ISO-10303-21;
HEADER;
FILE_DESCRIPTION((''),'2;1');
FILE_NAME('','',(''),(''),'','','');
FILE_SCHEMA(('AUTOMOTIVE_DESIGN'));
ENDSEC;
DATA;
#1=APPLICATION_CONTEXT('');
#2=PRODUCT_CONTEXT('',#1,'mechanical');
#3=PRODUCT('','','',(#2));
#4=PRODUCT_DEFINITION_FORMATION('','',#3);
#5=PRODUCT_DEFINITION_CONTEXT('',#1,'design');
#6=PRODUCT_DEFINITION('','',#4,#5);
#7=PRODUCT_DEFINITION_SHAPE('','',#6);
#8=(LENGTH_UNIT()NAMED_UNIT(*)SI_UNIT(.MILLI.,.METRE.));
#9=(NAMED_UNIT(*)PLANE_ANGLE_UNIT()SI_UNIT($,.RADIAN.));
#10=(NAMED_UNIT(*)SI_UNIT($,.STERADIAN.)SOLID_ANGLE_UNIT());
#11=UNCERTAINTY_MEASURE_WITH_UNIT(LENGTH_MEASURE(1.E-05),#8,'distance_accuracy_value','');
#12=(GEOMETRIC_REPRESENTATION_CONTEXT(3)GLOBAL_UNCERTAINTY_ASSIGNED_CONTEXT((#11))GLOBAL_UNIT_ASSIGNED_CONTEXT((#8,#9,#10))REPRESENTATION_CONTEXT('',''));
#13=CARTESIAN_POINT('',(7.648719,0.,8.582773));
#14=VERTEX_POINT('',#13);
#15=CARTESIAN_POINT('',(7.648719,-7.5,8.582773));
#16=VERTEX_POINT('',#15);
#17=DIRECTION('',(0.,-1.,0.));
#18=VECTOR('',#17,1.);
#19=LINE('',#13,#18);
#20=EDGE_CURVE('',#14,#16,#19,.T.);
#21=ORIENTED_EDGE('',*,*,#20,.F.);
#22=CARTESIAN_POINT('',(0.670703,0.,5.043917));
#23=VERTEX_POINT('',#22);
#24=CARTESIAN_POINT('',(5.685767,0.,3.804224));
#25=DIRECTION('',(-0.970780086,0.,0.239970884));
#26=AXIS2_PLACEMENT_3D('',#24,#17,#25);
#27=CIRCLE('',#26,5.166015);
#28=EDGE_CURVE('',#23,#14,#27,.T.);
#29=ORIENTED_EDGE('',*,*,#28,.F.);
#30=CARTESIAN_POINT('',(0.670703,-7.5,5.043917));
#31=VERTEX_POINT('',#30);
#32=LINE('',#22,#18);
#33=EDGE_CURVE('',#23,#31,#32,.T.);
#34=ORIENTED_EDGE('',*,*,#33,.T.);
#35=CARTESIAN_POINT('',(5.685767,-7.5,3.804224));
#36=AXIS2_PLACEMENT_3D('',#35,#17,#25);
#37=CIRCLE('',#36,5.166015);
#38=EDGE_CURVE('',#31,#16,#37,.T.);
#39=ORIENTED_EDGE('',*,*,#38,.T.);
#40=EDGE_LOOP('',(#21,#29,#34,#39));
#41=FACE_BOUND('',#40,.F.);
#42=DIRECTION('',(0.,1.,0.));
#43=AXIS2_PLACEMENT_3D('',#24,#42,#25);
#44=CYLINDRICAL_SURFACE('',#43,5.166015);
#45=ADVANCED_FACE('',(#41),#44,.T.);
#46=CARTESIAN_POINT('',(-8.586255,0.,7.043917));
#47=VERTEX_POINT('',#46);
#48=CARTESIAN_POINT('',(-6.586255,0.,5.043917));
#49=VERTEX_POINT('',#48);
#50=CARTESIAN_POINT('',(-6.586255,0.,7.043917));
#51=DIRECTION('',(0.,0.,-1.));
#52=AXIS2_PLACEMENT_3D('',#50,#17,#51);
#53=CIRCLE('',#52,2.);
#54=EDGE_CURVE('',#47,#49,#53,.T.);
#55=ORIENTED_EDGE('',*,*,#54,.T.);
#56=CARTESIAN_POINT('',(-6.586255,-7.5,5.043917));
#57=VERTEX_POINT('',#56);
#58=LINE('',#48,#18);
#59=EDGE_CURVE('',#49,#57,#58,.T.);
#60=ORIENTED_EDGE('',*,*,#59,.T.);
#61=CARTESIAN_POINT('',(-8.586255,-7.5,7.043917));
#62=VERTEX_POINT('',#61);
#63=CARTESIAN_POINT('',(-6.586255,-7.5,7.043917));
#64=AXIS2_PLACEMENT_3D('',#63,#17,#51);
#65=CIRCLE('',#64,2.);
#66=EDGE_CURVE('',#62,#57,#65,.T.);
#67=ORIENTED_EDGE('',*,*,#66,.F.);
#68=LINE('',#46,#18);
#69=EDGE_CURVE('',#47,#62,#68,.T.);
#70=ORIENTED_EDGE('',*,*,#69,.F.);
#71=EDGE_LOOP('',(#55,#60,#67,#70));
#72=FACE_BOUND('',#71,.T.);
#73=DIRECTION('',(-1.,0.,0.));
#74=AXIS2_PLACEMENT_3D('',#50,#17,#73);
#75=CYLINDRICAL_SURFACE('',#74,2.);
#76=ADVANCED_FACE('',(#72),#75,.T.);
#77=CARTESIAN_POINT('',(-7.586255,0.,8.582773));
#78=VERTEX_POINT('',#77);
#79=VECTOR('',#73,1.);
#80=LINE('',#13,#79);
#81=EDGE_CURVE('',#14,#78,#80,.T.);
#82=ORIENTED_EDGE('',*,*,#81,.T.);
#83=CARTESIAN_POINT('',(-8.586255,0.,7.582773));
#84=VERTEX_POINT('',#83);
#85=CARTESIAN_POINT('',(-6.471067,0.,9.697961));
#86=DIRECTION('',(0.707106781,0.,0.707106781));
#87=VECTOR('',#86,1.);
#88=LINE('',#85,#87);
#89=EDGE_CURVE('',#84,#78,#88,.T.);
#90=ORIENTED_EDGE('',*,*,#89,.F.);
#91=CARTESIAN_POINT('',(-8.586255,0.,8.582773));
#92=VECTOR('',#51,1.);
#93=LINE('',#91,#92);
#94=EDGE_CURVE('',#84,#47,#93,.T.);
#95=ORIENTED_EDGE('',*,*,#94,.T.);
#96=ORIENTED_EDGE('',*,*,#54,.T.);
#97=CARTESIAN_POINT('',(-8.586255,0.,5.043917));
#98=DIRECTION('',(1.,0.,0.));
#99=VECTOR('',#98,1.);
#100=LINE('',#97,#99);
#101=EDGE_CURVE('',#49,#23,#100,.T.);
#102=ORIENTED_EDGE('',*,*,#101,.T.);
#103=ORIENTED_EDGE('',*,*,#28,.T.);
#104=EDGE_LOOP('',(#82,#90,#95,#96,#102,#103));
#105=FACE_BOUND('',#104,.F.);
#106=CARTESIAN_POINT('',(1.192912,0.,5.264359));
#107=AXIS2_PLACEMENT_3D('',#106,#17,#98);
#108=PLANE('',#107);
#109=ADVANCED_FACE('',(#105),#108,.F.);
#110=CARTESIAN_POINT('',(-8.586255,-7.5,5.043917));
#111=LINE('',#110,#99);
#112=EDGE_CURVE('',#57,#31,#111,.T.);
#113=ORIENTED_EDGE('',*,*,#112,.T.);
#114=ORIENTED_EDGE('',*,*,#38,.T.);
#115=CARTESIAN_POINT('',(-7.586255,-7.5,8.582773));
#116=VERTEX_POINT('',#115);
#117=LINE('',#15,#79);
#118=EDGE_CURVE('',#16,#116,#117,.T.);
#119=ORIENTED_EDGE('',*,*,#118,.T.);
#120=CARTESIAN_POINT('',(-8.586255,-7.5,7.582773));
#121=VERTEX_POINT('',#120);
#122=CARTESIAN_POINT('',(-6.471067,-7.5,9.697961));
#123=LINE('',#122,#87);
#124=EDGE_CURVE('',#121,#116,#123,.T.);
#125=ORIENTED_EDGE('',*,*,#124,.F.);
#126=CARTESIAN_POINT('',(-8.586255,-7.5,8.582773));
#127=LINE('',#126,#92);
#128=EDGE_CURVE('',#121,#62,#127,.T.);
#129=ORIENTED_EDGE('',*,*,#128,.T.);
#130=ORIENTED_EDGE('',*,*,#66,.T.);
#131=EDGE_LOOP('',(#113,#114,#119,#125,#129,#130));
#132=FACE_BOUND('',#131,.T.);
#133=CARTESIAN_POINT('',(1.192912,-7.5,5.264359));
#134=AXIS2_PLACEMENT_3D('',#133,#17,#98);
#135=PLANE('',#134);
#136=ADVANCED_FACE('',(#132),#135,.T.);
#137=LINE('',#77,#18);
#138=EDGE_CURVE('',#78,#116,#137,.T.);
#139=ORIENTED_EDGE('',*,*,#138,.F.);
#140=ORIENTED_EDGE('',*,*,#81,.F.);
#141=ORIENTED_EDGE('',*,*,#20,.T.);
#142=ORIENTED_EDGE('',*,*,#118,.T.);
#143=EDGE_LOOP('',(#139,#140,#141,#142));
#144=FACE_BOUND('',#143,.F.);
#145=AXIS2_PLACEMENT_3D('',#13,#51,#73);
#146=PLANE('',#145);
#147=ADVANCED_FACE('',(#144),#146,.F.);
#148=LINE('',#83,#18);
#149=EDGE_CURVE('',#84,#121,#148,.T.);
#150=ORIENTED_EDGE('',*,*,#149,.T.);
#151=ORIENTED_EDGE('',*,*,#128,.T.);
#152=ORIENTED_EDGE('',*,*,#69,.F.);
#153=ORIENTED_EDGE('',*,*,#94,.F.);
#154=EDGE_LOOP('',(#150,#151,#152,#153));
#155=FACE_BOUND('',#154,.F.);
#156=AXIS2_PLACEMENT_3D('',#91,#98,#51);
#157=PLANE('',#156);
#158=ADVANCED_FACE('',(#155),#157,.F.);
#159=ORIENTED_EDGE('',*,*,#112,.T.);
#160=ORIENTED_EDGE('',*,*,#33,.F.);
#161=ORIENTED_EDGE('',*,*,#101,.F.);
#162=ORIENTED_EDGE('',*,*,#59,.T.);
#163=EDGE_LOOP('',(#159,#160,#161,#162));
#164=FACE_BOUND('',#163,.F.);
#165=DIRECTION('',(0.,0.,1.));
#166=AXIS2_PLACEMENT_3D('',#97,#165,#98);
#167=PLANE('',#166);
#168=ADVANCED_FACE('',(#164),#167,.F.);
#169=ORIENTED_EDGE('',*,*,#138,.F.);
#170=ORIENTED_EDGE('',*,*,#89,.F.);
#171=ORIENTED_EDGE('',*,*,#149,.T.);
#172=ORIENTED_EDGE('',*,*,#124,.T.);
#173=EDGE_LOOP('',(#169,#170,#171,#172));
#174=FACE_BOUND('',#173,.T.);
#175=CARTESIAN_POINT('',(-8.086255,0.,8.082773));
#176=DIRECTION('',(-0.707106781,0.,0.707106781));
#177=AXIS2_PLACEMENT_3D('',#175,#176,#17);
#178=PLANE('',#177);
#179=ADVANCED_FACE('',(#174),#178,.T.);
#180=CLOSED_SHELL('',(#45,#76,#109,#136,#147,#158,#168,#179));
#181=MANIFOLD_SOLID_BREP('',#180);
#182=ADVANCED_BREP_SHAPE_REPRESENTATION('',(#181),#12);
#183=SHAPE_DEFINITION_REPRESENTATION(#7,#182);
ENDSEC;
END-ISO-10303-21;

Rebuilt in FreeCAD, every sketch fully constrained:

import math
import FreeCAD as App
import Part
import Sketcher
Q = App.Units.Quantity


def edges_at(feature, points):
    """Names of the edges that pass closest to the given points."""
    edges = feature.Shape.Edges
    near = lambda p: min(range(len(edges)), key=lambda i: edges[i].distToShape(Part.Vertex(*p))[0])
    return sorted({f"Edge{near(p) + 1}" for p in points})

doc = App.newDocument("Part")
body = doc.addObject("PartDesign::Body", "Body")

# Sketch on XZ plane
sketch1 = doc.addObject("Sketcher::SketchObject", "Sketch")
body.addObject(sketch1)
sketch1.AttachmentSupport = (doc.XZ_Plane, [""])
sketch1.MapMode = "FlatFace"
sketch1.addGeometry([
    Part.LineSegment(App.Vector(7.6, 8.6, 0), App.Vector(-8.6, 8.6, 0)),
    Part.LineSegment(App.Vector(-8.6, 8.6, 0), App.Vector(-8.6, 5, 0)),
    Part.LineSegment(App.Vector(-8.6, 5, 0), App.Vector(0.7, 5, 0)),
    Part.ArcOfCircle(Part.Circle(App.Vector(5.7, 3.8, 0), App.Vector(0, 0, 1), 5.2), math.radians(166), math.radians(428)),
], False)
sketch1.addConstraint([
    Sketcher.Constraint("Coincident", 0, 2, 1, 1),
    Sketcher.Constraint("Coincident", 1, 2, 2, 1),
    Sketcher.Constraint("Coincident", 2, 2, 3, 1),
    Sketcher.Constraint("Coincident", 3, 2, 0, 1),
    Sketcher.Constraint("Horizontal", 0),
    Sketcher.Constraint("Vertical", 1),
    Sketcher.Constraint("Horizontal", 2),
    Sketcher.Constraint("Radius", 3, Q("5.166015 mm")),
    Sketcher.Constraint("DistanceX", 0, 2, 0, 1, Q("16.234974 mm")),
    Sketcher.Constraint("DistanceX", 2, 1, 2, 2, Q("9.256958 mm")),
    Sketcher.Constraint("DistanceY", 1, 2, 1, 1, Q("3.538856 mm")),
    Sketcher.Constraint("DistanceX", -1, 1, 3, 2, Q("7.648719 mm")),
    Sketcher.Constraint("DistanceY", -1, 1, 3, 3, Q("3.804224 mm")),
])
pad1 = doc.addObject("PartDesign::Pad", "Pad")
body.addObject(pad1)
pad1.Profile = sketch1
pad1.Length = 7.5
doc.recompute()

fillet = doc.addObject("PartDesign::Fillet", "Fillet")
body.addObject(fillet)
fillet.Base = (pad1, edges_at(pad1, [(-8.586, -3.75, 5.044)]))
fillet.Radius = 2
doc.recompute()

chamfer = doc.addObject("PartDesign::Chamfer", "Chamfer")
body.addObject(chamfer)
chamfer.Base = (fillet, edges_at(fillet, [(-8.586, -3.75, 8.583)]))
chamfer.Size = 1

doc.recompute()
